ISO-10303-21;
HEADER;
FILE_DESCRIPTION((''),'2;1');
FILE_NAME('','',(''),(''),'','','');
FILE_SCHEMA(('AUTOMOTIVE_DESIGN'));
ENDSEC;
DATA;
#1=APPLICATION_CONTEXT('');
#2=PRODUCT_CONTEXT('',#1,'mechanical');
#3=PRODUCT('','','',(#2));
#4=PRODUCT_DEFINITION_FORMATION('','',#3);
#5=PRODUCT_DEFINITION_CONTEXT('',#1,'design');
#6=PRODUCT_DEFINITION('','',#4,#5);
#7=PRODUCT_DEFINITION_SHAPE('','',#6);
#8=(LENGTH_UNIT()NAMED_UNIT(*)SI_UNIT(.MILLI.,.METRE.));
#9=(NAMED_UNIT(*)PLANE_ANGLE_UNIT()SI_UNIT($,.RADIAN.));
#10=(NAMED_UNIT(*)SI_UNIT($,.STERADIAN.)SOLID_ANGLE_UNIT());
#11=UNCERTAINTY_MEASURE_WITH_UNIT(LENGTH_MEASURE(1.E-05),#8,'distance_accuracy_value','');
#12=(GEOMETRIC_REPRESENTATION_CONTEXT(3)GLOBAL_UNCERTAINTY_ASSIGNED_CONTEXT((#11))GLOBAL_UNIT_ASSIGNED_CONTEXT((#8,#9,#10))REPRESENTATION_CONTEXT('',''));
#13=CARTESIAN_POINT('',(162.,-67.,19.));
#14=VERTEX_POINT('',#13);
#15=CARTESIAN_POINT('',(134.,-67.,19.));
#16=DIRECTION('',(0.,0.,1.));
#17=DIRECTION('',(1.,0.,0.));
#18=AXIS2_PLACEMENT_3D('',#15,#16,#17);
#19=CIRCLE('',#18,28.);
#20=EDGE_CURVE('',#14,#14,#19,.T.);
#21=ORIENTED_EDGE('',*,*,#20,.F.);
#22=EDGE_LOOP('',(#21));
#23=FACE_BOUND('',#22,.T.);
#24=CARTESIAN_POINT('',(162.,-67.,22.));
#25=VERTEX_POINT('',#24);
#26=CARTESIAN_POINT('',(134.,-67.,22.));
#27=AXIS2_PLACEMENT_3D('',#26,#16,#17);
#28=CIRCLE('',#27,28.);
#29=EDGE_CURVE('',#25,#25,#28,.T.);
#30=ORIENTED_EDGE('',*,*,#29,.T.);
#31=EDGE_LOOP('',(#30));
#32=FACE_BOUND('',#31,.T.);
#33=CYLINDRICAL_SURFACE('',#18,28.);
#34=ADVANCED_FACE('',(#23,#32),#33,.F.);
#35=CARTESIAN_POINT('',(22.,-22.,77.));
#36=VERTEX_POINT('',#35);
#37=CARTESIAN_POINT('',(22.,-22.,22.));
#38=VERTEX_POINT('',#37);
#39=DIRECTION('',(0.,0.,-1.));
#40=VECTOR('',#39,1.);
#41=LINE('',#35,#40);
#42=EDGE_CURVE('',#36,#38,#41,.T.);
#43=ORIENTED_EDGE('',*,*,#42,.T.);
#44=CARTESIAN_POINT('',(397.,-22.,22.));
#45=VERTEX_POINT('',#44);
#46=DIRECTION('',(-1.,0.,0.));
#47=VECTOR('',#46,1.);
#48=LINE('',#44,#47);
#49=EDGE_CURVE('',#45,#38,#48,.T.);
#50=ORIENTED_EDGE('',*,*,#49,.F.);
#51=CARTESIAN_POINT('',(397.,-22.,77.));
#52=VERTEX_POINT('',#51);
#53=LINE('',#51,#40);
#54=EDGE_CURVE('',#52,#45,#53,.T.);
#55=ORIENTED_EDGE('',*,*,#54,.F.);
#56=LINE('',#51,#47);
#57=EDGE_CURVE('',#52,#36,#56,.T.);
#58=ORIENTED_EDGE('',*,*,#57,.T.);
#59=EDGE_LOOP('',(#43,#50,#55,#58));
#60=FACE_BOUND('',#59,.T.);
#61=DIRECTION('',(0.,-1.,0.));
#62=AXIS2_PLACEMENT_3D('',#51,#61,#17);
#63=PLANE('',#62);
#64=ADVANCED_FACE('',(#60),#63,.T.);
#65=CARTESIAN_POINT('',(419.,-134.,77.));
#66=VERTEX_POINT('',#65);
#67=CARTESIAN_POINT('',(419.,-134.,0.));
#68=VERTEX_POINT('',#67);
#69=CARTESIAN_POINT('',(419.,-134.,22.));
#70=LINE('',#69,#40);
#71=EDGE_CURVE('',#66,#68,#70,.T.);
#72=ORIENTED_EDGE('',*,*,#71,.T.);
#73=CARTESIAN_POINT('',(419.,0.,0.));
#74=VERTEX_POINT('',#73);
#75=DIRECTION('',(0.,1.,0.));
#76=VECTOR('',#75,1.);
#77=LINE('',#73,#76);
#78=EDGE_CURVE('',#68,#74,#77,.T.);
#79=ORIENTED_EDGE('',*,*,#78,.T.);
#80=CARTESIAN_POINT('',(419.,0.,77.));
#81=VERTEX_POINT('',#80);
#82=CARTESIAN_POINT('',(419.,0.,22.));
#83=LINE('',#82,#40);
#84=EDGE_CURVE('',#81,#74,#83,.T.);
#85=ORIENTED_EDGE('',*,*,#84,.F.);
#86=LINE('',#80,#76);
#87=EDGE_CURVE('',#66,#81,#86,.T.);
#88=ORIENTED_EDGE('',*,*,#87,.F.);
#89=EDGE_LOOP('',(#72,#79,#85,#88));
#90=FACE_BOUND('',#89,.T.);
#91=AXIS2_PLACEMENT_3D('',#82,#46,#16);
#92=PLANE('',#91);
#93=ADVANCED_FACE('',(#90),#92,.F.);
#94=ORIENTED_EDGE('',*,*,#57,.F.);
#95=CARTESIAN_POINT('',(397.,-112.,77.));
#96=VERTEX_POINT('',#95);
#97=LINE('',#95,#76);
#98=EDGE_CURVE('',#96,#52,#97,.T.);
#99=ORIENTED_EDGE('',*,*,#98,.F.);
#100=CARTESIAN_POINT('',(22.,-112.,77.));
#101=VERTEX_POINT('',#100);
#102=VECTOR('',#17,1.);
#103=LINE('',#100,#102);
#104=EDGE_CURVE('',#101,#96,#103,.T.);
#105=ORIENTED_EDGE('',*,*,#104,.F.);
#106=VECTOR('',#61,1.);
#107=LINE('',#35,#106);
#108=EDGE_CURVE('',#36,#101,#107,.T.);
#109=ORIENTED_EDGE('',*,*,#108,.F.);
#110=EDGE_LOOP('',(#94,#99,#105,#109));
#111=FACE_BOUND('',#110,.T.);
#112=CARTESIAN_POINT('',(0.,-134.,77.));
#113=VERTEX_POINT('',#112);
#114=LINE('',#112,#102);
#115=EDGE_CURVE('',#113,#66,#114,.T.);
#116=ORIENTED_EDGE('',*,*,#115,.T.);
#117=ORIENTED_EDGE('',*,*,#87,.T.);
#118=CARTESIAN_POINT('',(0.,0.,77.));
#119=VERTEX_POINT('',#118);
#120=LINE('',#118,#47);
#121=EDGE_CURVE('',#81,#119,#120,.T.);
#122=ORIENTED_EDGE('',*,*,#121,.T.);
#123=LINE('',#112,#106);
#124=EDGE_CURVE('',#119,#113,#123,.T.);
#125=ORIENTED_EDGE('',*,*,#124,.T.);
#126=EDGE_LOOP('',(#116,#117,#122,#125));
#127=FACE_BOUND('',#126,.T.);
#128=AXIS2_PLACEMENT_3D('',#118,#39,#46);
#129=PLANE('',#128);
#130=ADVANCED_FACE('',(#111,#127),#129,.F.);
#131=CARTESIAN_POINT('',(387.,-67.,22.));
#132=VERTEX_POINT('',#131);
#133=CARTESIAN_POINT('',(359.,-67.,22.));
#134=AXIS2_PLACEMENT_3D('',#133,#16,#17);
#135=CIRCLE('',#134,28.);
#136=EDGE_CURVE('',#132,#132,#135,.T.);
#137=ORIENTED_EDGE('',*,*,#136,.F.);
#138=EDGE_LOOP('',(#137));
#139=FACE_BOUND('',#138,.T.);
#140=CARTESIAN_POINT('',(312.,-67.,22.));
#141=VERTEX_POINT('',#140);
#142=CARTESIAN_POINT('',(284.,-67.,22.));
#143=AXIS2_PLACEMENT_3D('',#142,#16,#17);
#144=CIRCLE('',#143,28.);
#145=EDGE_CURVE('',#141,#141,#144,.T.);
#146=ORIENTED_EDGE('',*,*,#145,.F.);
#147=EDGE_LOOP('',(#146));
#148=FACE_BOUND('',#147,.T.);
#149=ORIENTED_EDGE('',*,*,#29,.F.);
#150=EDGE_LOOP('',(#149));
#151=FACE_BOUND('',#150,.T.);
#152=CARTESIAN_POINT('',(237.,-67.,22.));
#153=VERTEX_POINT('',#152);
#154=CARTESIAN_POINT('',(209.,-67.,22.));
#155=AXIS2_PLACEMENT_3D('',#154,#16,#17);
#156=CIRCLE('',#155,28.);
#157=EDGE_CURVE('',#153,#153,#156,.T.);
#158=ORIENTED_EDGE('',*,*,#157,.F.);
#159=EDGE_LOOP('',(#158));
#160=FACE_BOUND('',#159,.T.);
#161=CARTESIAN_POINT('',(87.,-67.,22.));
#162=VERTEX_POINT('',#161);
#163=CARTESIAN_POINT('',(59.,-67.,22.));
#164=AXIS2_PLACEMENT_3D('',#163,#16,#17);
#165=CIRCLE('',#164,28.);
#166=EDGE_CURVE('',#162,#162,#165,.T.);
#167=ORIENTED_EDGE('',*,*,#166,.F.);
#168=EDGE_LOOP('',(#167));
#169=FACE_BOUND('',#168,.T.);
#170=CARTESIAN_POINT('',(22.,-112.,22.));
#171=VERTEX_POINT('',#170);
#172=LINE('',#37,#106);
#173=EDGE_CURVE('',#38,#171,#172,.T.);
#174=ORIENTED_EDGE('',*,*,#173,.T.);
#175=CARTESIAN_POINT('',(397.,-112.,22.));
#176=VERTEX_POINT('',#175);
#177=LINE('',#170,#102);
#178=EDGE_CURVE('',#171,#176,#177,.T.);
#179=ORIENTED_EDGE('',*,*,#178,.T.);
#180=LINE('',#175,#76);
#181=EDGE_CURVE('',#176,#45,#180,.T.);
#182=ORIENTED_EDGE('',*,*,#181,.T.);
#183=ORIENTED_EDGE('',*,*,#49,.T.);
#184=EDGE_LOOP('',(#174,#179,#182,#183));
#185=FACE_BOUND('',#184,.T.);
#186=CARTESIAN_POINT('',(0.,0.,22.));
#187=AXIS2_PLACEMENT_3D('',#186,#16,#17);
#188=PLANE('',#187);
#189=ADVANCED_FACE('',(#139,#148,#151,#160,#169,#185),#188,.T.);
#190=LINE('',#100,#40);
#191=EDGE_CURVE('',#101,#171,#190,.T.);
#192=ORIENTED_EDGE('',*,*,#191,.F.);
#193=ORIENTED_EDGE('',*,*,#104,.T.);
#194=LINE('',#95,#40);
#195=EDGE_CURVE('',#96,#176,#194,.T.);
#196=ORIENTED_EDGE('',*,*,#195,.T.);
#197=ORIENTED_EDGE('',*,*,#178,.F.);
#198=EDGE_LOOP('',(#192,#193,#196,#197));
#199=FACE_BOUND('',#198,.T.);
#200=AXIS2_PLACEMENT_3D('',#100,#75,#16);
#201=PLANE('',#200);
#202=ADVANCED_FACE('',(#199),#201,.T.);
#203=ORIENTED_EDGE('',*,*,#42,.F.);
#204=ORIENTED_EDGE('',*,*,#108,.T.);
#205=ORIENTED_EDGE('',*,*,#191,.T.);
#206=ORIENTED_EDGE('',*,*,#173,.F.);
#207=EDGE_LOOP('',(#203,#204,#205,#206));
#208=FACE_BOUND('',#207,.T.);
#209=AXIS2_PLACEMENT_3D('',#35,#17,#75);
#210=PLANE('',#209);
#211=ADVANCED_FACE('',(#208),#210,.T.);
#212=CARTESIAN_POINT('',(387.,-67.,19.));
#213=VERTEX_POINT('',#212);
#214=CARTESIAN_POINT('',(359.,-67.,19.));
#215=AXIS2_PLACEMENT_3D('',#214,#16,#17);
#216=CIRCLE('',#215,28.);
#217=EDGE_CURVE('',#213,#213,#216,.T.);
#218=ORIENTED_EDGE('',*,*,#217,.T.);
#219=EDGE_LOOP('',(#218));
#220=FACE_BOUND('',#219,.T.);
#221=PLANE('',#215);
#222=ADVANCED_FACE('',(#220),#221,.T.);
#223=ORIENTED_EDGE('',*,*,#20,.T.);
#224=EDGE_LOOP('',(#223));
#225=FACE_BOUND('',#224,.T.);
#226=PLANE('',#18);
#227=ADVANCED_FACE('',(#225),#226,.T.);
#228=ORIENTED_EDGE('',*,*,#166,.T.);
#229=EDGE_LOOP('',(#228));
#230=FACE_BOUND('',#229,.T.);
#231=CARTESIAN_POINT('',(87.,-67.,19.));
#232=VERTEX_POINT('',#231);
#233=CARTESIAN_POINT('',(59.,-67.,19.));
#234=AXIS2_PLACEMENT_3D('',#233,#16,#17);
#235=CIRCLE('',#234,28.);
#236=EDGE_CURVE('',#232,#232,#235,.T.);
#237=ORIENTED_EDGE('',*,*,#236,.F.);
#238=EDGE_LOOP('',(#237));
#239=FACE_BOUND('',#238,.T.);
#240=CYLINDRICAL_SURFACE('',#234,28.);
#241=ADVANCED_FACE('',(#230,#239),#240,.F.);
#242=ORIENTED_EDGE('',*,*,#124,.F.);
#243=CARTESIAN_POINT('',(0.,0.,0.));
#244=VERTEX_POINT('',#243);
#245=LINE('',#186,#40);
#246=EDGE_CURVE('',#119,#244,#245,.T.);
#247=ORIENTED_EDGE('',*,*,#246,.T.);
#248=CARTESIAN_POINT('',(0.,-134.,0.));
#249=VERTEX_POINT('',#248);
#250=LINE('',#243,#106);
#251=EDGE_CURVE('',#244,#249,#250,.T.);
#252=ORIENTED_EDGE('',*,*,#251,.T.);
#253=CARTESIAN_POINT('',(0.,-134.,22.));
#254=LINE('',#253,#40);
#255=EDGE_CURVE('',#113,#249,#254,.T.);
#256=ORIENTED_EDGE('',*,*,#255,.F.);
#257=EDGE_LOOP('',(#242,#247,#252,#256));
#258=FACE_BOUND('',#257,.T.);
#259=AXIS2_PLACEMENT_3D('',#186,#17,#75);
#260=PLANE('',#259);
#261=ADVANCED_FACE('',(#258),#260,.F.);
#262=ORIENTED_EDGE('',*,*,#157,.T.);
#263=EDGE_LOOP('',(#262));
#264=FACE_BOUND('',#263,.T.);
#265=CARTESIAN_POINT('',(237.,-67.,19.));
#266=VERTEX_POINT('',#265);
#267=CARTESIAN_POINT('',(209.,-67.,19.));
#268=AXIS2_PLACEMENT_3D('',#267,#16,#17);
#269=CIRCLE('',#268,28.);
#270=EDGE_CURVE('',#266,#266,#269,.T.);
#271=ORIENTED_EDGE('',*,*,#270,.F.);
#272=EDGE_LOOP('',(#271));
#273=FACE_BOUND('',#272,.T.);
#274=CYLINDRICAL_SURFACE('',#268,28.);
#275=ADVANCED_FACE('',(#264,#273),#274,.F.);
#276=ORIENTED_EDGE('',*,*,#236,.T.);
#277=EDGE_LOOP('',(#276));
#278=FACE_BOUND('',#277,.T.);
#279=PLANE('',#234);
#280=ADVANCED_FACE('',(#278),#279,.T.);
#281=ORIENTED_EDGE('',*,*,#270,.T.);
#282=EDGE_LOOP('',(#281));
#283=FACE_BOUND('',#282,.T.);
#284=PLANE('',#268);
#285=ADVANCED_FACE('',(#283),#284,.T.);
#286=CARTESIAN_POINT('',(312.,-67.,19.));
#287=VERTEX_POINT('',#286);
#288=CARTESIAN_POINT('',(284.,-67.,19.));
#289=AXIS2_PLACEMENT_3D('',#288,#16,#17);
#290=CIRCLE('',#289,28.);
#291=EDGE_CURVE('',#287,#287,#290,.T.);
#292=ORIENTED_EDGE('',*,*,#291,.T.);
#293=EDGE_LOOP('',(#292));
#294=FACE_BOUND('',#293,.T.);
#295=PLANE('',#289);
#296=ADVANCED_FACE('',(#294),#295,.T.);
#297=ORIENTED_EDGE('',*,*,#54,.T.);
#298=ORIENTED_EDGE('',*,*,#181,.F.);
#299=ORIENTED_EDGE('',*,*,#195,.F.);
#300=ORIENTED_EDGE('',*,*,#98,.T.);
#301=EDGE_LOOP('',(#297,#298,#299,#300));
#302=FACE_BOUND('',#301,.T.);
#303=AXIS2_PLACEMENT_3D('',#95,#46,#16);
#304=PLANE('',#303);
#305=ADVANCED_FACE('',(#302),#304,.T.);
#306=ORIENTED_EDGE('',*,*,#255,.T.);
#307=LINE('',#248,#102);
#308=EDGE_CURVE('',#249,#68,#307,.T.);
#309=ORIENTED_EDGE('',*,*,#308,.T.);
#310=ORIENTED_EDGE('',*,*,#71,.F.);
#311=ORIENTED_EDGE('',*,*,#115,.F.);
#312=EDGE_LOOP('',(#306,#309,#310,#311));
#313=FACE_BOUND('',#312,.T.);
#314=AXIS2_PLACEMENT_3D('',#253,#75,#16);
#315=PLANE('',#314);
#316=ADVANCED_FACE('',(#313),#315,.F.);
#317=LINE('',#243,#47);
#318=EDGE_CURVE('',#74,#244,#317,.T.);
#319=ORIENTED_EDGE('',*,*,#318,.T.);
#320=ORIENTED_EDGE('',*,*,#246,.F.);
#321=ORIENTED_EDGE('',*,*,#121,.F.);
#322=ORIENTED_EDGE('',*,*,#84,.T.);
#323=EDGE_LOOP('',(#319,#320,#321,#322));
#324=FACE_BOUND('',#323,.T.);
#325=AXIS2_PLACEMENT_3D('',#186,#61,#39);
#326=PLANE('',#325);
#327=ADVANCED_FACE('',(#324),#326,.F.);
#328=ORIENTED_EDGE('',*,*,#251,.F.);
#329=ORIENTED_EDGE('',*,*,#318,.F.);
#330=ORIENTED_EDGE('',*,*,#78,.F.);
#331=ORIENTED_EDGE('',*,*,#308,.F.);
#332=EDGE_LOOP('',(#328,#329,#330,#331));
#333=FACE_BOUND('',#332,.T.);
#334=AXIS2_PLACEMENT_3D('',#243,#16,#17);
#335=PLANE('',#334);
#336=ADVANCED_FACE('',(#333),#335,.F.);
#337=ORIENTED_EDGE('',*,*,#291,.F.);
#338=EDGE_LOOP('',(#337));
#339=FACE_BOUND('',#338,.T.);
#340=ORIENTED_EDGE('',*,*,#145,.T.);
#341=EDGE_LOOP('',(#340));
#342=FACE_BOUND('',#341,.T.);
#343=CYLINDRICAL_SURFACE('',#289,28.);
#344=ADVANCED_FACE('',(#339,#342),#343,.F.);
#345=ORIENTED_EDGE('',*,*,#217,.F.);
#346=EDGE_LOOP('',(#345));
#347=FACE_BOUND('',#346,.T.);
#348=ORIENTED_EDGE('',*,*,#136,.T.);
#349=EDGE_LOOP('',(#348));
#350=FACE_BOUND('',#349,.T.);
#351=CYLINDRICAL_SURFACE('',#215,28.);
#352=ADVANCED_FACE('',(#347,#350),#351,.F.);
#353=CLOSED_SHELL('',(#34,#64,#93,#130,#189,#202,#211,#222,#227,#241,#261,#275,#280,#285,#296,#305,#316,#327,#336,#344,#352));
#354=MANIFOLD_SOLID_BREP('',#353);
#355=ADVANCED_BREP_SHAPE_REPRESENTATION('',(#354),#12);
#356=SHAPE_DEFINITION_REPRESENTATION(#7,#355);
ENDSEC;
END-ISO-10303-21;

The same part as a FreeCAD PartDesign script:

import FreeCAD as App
import Part
import Sketcher

V = App.Vector


def add_polygon(sketch, points):
    """Adds a closed chain of lines whose ends are joined by coincident constraints."""
    first, n = sketch.GeometryCount, len(points)
    for a, b in zip(points, points[1:] + points[:1]):
        sketch.addGeometry(Part.LineSegment(App.Vector(*a, 0), App.Vector(*b, 0)), False)
    for i in range(n):
        sketch.addConstraint(Sketcher.Constraint("Coincident", first + i, 2, first + (i + 1) % n, 1))

doc = App.newDocument("Part")
body = doc.addObject("PartDesign::Body", "Body")

sketch1 = doc.addObject("Sketcher::SketchObject", "Sketch")
body.addObject(sketch1)
sketch1.AttachmentSupport = (doc.XY_Plane, [""])
sketch1.MapMode = "FlatFace"
add_polygon(sketch1, [(0, 0), (0, -134), (419, -134), (419, 0)])
sketch1.addConstraint([
    Sketcher.Constraint("Vertical", 0),
    Sketcher.Constraint("Horizontal", 1),
    Sketcher.Constraint("Vertical", 2),
    Sketcher.Constraint("Horizontal", 3),
    Sketcher.Constraint("Coincident", 3, 2, -1, 1),
    Sketcher.Constraint("DistanceX", 1, 1, 1, 2, 419.0),
    Sketcher.Constraint("DistanceY", 0, 2, 0, 1, 134.0),
])
pad1 = doc.addObject("PartDesign::Pad", "Pad")
body.addObject(pad1)
pad1.Profile = sketch1
pad1.Length = 22

sketch2 = doc.addObject("Sketcher::SketchObject", "Sketch001")
body.addObject(sketch2)
sketch2.AttachmentSupport = (doc.XY_Plane, [""])
sketch2.MapMode = "FlatFace"
sketch2.AttachmentOffset = App.Placement(V(0, 0, 22), App.Rotation())
add_polygon(sketch2, [(0, 0), (0, -134), (419, -134), (419, 0)])
add_polygon(sketch2, [(397, -112), (22, -112), (22, -22), (397, -22)])
sketch2.addConstraint([
    Sketcher.Constraint("Vertical", 0),
    Sketcher.Constraint("Horizontal", 1),
    Sketcher.Constraint("Vertical", 2),
    Sketcher.Constraint("Horizontal", 3),
    Sketcher.Constraint("Horizontal", 4),
    Sketcher.Constraint("Vertical", 5),
    Sketcher.Constraint("Horizontal", 6),
    Sketcher.Constraint("Vertical", 7),
    Sketcher.Constraint("Coincident", 3, 2, -1, 1),
    Sketcher.Constraint("DistanceX", 1, 1, 1, 2, 419.0),
    Sketcher.Constraint("DistanceX", 4, 2, 4, 1, 375.0),
    Sketcher.Constraint("DistanceY", 0, 2, 0, 1, 134.0),
    Sketcher.Constraint("DistanceY", 5, 1, 5, 2, 90.0),
    Sketcher.Constraint("DistanceX", -1, 1, 4, 2, 22.0),
    Sketcher.Constraint("DistanceY", 4, 2, -1, 1, 112.0),
])
pad2 = doc.addObject("PartDesign::Pad", "Pad001")
body.addObject(pad2)
pad2.Profile = sketch2
pad2.Length = 55

sketch3 = doc.addObject("Sketcher::SketchObject", "Sketch002")
body.addObject(sketch3)
sketch3.AttachmentSupport = (doc.XY_Plane, [""])
sketch3.MapMode = "FlatFace"
sketch3.AttachmentOffset = App.Placement(V(0, 0, 22), App.Rotation())
sketch3.addGeometry([
    Part.Circle(V(59, -67, 0), V(0, 0, 1), 28),
    Part.Circle(V(134, -67, 0), V(0, 0, 1), 28),
    Part.Circle(V(209, -67, 0), V(0, 0, 1), 28),
    Part.Circle(V(284, -67, 0), V(0, 0, 1), 28),
    Part.Circle(V(359, -67, 0), V(0, 0, 1), 28),
], False)
sketch3.addConstraint([
    Sketcher.Constraint("Equal", 0, 1),
    Sketcher.Constraint("Equal", 1, 2),
    Sketcher.Constraint("Equal", 2, 3),
    Sketcher.Constraint("Equal", 3, 4),
    Sketcher.Constraint("Horizontal", 0, 3, 1, 3),
    Sketcher.Constraint("Horizontal", 1, 3, 2, 3),
    Sketcher.Constraint("Horizontal", 2, 3, 3, 3),
    Sketcher.Constraint("Horizontal", 3, 3, 4, 3),
    Sketcher.Constraint("Diameter", 0, 56.0),
    Sketcher.Constraint("DistanceX", -1, 1, 0, 3, 59.0),
    Sketcher.Constraint("DistanceY", 0, 3, -1, 1, 67.0),
    Sketcher.Constraint("DistanceX", -1, 1, 1, 3, 134.0),
    Sketcher.Constraint("DistanceX", -1, 1, 2, 3, 209.0),
    Sketcher.Constraint("DistanceX", -1, 1, 3, 3, 284.0),
    Sketcher.Constraint("DistanceX", -1, 1, 4, 3, 359.0),
])
pocket1 = doc.addObject("PartDesign::Pocket", "Pocket")
body.addObject(pocket1)
pocket1.Profile = sketch3
pocket1.Length = 3

doc.recompute()
